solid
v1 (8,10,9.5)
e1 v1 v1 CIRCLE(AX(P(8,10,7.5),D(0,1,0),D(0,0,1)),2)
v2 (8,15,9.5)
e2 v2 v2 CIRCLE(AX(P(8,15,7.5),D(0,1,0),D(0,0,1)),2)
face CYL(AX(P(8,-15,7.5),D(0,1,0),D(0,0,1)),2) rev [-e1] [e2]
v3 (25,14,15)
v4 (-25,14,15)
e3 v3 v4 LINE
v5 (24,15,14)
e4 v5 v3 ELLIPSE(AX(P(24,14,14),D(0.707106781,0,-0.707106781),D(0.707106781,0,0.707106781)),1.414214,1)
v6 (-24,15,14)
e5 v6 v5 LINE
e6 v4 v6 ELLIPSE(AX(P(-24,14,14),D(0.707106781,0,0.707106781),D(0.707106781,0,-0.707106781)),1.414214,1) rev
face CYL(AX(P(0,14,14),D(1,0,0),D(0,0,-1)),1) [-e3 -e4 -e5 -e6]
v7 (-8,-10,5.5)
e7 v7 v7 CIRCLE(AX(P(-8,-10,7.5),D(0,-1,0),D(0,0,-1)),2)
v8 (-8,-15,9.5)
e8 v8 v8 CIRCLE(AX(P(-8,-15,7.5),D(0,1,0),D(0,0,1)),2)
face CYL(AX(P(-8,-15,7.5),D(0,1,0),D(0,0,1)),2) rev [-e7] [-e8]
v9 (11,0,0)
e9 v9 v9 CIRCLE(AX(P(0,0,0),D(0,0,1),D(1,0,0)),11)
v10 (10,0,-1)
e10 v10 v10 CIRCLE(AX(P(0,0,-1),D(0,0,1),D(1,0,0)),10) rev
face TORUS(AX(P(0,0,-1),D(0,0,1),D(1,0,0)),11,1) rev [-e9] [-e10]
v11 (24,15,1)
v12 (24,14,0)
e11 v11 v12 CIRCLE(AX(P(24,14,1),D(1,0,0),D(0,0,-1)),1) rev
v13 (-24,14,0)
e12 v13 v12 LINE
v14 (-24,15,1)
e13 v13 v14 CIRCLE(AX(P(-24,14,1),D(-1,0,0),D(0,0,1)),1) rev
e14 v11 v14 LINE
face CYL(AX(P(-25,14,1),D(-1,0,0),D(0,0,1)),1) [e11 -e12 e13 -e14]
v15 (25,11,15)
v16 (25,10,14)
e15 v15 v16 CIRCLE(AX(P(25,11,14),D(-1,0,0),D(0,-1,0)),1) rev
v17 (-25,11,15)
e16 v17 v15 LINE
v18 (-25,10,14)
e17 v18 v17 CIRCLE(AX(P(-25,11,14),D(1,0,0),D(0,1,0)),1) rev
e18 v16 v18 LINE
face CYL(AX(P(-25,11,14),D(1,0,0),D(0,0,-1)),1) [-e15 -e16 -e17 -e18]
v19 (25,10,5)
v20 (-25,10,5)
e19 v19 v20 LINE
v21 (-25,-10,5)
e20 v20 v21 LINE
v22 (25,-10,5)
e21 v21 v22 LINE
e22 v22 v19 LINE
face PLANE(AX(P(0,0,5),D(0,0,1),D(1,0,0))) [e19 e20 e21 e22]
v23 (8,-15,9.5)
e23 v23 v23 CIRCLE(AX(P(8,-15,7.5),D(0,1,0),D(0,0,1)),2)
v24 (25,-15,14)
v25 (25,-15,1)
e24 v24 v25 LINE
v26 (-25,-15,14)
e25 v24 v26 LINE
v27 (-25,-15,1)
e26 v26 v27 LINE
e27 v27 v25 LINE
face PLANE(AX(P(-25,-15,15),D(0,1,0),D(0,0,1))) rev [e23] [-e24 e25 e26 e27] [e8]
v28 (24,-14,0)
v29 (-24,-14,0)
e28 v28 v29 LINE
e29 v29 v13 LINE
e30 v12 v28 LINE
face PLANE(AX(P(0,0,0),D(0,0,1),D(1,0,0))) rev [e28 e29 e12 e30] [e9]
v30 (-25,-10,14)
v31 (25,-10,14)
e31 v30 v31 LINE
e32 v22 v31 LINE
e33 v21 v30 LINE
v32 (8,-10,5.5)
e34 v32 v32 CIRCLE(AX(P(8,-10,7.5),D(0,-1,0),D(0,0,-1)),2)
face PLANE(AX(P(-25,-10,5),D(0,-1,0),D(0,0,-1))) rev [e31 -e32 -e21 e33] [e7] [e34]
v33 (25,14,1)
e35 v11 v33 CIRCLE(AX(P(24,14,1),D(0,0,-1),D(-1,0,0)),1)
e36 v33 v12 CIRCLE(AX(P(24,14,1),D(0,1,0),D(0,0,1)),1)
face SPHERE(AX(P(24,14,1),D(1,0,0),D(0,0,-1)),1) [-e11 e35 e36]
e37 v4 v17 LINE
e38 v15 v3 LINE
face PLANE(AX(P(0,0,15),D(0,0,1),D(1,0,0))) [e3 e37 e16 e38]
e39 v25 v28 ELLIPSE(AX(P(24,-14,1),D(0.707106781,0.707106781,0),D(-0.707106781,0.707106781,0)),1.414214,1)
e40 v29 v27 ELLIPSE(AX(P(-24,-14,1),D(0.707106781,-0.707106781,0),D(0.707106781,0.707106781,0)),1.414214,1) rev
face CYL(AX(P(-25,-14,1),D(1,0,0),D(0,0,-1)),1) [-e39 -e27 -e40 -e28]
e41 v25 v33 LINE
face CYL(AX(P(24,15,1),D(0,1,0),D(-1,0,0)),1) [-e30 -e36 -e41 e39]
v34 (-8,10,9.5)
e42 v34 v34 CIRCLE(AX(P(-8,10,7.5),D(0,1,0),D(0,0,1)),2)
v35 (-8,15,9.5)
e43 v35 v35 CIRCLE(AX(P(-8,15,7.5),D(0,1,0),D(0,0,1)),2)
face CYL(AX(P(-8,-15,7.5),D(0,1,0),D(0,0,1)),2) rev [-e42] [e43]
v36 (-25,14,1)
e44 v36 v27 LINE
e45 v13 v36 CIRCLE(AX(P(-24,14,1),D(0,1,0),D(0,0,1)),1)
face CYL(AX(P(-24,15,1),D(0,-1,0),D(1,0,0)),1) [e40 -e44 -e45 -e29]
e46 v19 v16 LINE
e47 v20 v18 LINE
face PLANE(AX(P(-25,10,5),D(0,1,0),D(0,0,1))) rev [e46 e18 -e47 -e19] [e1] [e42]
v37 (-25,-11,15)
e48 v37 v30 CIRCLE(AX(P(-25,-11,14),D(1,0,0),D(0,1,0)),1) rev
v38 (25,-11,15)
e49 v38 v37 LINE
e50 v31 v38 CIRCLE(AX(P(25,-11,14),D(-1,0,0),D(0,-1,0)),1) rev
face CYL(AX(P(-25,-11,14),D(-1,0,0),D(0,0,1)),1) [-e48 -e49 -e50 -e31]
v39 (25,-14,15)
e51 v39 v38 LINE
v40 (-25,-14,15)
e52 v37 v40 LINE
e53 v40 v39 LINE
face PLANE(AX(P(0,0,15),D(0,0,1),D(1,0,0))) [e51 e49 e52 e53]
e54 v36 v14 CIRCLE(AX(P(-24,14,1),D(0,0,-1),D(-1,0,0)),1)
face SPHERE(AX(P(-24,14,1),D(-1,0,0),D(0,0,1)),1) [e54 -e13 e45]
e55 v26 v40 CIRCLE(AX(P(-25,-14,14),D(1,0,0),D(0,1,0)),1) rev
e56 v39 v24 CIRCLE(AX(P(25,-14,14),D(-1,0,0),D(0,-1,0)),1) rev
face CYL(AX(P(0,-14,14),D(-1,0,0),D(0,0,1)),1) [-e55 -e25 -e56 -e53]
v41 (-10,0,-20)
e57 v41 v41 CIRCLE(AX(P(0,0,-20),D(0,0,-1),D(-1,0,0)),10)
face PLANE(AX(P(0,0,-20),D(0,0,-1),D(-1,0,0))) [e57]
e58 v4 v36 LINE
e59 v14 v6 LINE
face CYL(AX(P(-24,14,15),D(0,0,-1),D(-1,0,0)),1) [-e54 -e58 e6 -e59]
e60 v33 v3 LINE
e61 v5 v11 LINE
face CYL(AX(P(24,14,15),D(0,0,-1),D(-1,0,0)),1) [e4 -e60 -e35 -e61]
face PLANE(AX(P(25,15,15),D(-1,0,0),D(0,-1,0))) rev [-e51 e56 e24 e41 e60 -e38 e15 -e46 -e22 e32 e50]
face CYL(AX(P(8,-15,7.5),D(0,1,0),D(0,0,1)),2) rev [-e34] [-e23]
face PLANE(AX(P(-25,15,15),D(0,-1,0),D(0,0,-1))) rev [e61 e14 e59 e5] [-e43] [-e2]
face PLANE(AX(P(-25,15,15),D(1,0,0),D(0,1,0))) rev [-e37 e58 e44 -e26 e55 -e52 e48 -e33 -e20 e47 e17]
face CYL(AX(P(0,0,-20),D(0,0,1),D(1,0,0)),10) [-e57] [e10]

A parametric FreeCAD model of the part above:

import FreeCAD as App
import Part
import Sketcher
from FreeCAD import Vector
Q = App.Units.Quantity


def edges_at(feature, points):
    """Names of the edges that pass closest to the given points."""
    edges = feature.Shape.Edges
    near = lambda p: min(range(len(edges)), key=lambda i: edges[i].distToShape(Part.Vertex(*p))[0])
    return sorted({f"Edge{near(p) + 1}" for p in points})

doc = App.newDocument("Part")
body = doc.addObject("PartDesign::Body", "Body")

sketch1 = body.newObject("Sketcher::SketchObject", "Sketch")
sketch1.AttachmentSupport = (doc.getObject("XY_Plane"), [""])
sketch1.MapMode = "FlatFace"
sketch1.addGeometry([
    Part.LineSegment(Vector(-25, 15, 0), Vector(-25, -15, 0)),
    Part.LineSegment(Vector(-25, -15, 0), Vector(25, -15, 0)),
    Part.LineSegment(Vector(25, -15, 0), Vector(25, 15, 0)),
    Part.LineSegment(Vector(25, 15, 0), Vector(-25, 15, 0)),
], False)
sketch1.addConstraint([
    Sketcher.Constraint("Coincident", 0, 2, 1, 1),
    Sketcher.Constraint("Coincident", 1, 2, 2, 1),
    Sketcher.Constraint("Coincident", 2, 2, 3, 1),
    Sketcher.Constraint("Coincident", 3, 2, 0, 1),
    Sketcher.Constraint("Vertical", 0),
    Sketcher.Constraint("Horizontal", 1),
    Sketcher.Constraint("Vertical", 2),
    Sketcher.Constraint("Horizontal", 3),
    Sketcher.Constraint("Symmetric", 0, 2, 2, 2, -1, 1),
    Sketcher.Constraint("DistanceX", 1, 1, 1, 2, Q("50 mm")),
    Sketcher.Constraint("DistanceY", 0, 2, 0, 1, Q("30 mm")),
])
pad1 = body.newObject("PartDesign::Pad", "Pad")
pad1.Profile = sketch1
pad1.Length = 15

sketch2 = body.newObject("Sketcher::SketchObject", "Sketch001")
sketch2.AttachmentSupport = (doc.getObject("XY_Plane"), [""])
sketch2.MapMode = "FlatFace"
sketch2.AttachmentOffset = App.Placement(Vector(0, 0, 15), App.Rotation())
sketch2.addGeometry([
    Part.LineSegment(Vector(-25, 10, 0), Vector(-25, -10, 0)),
    Part.LineSegment(Vector(-25, -10, 0), Vector(25, -10, 0)),
    Part.LineSegment(Vector(25, -10, 0), Vector(25, 10, 0)),
    Part.LineSegment(Vector(25, 10, 0), Vector(-25, 10, 0)),
], False)
sketch2.addConstraint([
    Sketcher.Constraint("Coincident", 0, 2, 1, 1),
    Sketcher.Constraint("Coincident", 1, 2, 2, 1),
    Sketcher.Constraint("Coincident", 2, 2, 3, 1),
    Sketcher.Constraint("Coincident", 3, 2, 0, 1),
    Sketcher.Constraint("Vertical", 0),
    Sketcher.Constraint("Horizontal", 1),
    Sketcher.Constraint("Vertical", 2),
    Sketcher.Constraint("Horizontal", 3),
    Sketcher.Constraint("Symmetric", 0, 2, 2, 2, -1, 1),
    Sketcher.Constraint("DistanceX", 1, 1, 1, 2, Q("50 mm")),
    Sketcher.Constraint("DistanceY", 0, 2, 0, 1, Q("20 mm")),
])
pocket1 = body.newObject("PartDesign::Pocket", "Pocket")
pocket1.Profile = sketch2
pocket1.Length = 10

sketch3 = body.newObject("Sketcher::SketchObject", "Sketch002")
sketch3.AttachmentSupport = (doc.getObject("XZ_Plane"), [""])
sketch3.MapMode = "FlatFace"
sketch3.AttachmentOffset = App.Placement(Vector(0, 0, -15), App.Rotation())
sketch3.addGeometry([
    Part.Circle(Vector(-8, 7.5, 0), Vector(0, 0, 1), 2),
    Part.Circle(Vector(8, 7.5, 0), Vector(0, 0, 1), 2),
], False)
sketch3.addConstraint([
    Sketcher.Constraint("Equal", 0, 1),
    Sketcher.Constraint("Symmetric", 0, 3, 1, 3, -2),
    Sketcher.Constraint("Diameter", 0, Q("4 mm")),
    Sketcher.Constraint("DistanceX", 0, 3, -1, 1, Q("8 mm")),
    Sketcher.Constraint("DistanceY", -1, 1, 0, 3, Q("7.5 mm")),
])
pocket2 = body.newObject("PartDesign::Pocket", "Pocket001")
pocket2.Profile = sketch3
pocket2.Type = "ThroughAll"
pocket2.Reversed = True

sketch4 = body.newObject("Sketcher::SketchObject", "Sketch003")
sketch4.AttachmentSupport = (doc.getObject("XY_Plane"), [""])
sketch4.MapMode = "FlatFace"
sketch4.addGeometry(Part.Circle(Vector(0, 0, 0), Vector(0, 0, 1), 10), False)
sketch4.addConstraint([
    Sketcher.Constraint("Coincident", 0, 3, -1, 1),
    Sketcher.Constraint("Diameter", 0, Q("20 mm")),
])
pad2 = body.newObject("PartDesign::Pad", "Pad001")
pad2.Profile = sketch4
pad2.Length = 20
pad2.Reversed = True
doc.recompute()

fillet = body.newObject("PartDesign::Fillet", "Fillet")
fillet.Base = (pad2, edges_at(pad2, [(0, -10, 15)]))
fillet.Radius = 1
doc.recompute()

fillet2 = body.newObject("PartDesign::Fillet", "Fillet001")
fillet2.Base = (fillet, edges_at(fillet, [(0, -15, 15)]))
fillet2.Radius = 1
doc.recompute()

fillet3 = body.newObject("PartDesign::Fillet", "Fillet002")
fillet3.Base = (fillet2, edges_at(fillet2, [
    (0, -15, 0),
    (-25, 0, 0),
    (0, 15, 0),
    (25, 0, 0),
    (-25, 15, 7.5),
    (25, 15, 7.5),
    (0, 15, 15),
]))
fillet3.Radius = 1
doc.recompute()

fillet4 = body.newObject("PartDesign::Fillet", "Fillet003")
fillet4.Base = (fillet3, edges_at(fillet3, [(0, 10, 15)]))
fillet4.Radius = 1
doc.recompute()

fillet5 = body.newObject("PartDesign::Fillet", "Fillet004")
fillet5.Base = (fillet4, edges_at(fillet4, [(10, 0, 0)]))
fillet5.Radius = 1

doc.recompute()
